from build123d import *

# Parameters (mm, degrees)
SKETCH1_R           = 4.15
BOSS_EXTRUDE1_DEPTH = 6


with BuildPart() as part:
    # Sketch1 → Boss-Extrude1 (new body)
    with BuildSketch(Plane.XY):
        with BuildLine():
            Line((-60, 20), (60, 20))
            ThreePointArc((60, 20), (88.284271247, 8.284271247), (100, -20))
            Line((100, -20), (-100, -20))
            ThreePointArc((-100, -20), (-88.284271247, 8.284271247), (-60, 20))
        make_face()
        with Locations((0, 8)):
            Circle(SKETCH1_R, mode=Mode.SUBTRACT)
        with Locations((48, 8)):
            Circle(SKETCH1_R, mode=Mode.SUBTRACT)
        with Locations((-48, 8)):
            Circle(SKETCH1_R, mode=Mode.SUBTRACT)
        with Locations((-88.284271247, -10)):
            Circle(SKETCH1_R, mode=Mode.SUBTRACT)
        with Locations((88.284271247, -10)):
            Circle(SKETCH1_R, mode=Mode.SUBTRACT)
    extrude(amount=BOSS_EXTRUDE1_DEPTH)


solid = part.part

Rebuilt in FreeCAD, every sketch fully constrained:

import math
import FreeCAD as App
import Part
import Sketcher
from FreeCAD import Vector

doc = App.newDocument("Part")
body = doc.addObject("PartDesign::Body", "Body")

# Sketch on XY plane
sketch1 = doc.addObject("Sketcher::SketchObject", "Sketch")
body.addObject(sketch1)
sketch1.AttachmentSupport = (doc.XY_Plane, [""])
sketch1.MapMode = "FlatFace"
sketch1.addGeometry([
    Part.LineSegment(Vector(60, 20, 0), Vector(-60, 20, 0)),  # 0
    Part.ArcOfCircle(Part.Circle(Vector(-60, -20, 0), Vector(0, 0, 1), 40), math.radians(90), math.radians(180)),  # 1
    Part.LineSegment(Vector(-100, -20, 0), Vector(100, -20, 0)),  # 2
    Part.ArcOfCircle(Part.Circle(Vector(60, -20, 0), Vector(0, 0, 1), 40), math.radians(0), math.radians(90)),  # 3
    Part.Circle(Vector(88.3, -10, 0), Vector(0, 0, 1), 4.2),  # 4
    Part.Circle(Vector(-88.3, -10, 0), Vector(0, 0, 1), 4.2),  # 5
    Part.Circle(Vector(48, 8, 0), Vector(0, 0, 1), 4.2),  # 6
    Part.Circle(Vector(0, 8, 0), Vector(0, 0, 1), 4.2),  # 7
    Part.Circle(Vector(-48, 8, 0), Vector(0, 0, 1), 4.2),  # 8
], False)
sketch1.addConstraint([
    Sketcher.Constraint("Tangent", 0, 2, 1, 1),
    Sketcher.Constraint("Coincident", 1, 2, 2, 1),
    Sketcher.Constraint("Coincident", 2, 2, 3, 1),
    Sketcher.Constraint("Tangent", 3, 2, 0, 1),
    Sketcher.Constraint("Horizontal", 0),
    Sketcher.Constraint("Horizontal", 2),
    Sketcher.Constraint("Equal", 1, 3),
    Sketcher.Constraint("Equal", 4, 5),
    Sketcher.Constraint("Equal", 5, 6),
    Sketcher.Constraint("Equal", 6, 7),
    Sketcher.Constraint("Equal", 7, 8),
    Sketcher.Constraint("Symmetric", 4, 3, 5, 3, -2),
    Sketcher.Constraint("Symmetric", 6, 3, 8, 3, -2),
    Sketcher.Constraint("PointOnObject", 7, 3, -2),
    Sketcher.Constraint("Horizontal", 6, 3, 7, 3),
    Sketcher.Constraint("Horizontal", 3, 3, 1, 2),
    Sketcher.Constraint("Radius", 1, 40.0),
    Sketcher.Constraint("Diameter", 4, 8.3),
    Sketcher.Constraint("DistanceX", 0, 2, 0, 1, 120.0),
    Sketcher.Constraint("DistanceX", 1, 3, -1, 1, 60.0),
    Sketcher.Constraint("DistanceY", 1, 3, -1, 1, 20.0),
    Sketcher.Constraint("DistanceY", 4, 3, -1, 1, 10.0),
    Sketcher.Constraint("DistanceX", -1, 1, 6, 3, 48.0),
    Sketcher.Constraint("DistanceY", -1, 1, 6, 3, 8.0),
    Sketcher.Constraint("DistanceX", -1, 1, 4, 3, 88.284271),
])
pad1 = doc.addObject("PartDesign::Pad", "Pad")
body.addObject(pad1)
pad1.Profile = sketch1
pad1.Length = 6

doc.recompute()
